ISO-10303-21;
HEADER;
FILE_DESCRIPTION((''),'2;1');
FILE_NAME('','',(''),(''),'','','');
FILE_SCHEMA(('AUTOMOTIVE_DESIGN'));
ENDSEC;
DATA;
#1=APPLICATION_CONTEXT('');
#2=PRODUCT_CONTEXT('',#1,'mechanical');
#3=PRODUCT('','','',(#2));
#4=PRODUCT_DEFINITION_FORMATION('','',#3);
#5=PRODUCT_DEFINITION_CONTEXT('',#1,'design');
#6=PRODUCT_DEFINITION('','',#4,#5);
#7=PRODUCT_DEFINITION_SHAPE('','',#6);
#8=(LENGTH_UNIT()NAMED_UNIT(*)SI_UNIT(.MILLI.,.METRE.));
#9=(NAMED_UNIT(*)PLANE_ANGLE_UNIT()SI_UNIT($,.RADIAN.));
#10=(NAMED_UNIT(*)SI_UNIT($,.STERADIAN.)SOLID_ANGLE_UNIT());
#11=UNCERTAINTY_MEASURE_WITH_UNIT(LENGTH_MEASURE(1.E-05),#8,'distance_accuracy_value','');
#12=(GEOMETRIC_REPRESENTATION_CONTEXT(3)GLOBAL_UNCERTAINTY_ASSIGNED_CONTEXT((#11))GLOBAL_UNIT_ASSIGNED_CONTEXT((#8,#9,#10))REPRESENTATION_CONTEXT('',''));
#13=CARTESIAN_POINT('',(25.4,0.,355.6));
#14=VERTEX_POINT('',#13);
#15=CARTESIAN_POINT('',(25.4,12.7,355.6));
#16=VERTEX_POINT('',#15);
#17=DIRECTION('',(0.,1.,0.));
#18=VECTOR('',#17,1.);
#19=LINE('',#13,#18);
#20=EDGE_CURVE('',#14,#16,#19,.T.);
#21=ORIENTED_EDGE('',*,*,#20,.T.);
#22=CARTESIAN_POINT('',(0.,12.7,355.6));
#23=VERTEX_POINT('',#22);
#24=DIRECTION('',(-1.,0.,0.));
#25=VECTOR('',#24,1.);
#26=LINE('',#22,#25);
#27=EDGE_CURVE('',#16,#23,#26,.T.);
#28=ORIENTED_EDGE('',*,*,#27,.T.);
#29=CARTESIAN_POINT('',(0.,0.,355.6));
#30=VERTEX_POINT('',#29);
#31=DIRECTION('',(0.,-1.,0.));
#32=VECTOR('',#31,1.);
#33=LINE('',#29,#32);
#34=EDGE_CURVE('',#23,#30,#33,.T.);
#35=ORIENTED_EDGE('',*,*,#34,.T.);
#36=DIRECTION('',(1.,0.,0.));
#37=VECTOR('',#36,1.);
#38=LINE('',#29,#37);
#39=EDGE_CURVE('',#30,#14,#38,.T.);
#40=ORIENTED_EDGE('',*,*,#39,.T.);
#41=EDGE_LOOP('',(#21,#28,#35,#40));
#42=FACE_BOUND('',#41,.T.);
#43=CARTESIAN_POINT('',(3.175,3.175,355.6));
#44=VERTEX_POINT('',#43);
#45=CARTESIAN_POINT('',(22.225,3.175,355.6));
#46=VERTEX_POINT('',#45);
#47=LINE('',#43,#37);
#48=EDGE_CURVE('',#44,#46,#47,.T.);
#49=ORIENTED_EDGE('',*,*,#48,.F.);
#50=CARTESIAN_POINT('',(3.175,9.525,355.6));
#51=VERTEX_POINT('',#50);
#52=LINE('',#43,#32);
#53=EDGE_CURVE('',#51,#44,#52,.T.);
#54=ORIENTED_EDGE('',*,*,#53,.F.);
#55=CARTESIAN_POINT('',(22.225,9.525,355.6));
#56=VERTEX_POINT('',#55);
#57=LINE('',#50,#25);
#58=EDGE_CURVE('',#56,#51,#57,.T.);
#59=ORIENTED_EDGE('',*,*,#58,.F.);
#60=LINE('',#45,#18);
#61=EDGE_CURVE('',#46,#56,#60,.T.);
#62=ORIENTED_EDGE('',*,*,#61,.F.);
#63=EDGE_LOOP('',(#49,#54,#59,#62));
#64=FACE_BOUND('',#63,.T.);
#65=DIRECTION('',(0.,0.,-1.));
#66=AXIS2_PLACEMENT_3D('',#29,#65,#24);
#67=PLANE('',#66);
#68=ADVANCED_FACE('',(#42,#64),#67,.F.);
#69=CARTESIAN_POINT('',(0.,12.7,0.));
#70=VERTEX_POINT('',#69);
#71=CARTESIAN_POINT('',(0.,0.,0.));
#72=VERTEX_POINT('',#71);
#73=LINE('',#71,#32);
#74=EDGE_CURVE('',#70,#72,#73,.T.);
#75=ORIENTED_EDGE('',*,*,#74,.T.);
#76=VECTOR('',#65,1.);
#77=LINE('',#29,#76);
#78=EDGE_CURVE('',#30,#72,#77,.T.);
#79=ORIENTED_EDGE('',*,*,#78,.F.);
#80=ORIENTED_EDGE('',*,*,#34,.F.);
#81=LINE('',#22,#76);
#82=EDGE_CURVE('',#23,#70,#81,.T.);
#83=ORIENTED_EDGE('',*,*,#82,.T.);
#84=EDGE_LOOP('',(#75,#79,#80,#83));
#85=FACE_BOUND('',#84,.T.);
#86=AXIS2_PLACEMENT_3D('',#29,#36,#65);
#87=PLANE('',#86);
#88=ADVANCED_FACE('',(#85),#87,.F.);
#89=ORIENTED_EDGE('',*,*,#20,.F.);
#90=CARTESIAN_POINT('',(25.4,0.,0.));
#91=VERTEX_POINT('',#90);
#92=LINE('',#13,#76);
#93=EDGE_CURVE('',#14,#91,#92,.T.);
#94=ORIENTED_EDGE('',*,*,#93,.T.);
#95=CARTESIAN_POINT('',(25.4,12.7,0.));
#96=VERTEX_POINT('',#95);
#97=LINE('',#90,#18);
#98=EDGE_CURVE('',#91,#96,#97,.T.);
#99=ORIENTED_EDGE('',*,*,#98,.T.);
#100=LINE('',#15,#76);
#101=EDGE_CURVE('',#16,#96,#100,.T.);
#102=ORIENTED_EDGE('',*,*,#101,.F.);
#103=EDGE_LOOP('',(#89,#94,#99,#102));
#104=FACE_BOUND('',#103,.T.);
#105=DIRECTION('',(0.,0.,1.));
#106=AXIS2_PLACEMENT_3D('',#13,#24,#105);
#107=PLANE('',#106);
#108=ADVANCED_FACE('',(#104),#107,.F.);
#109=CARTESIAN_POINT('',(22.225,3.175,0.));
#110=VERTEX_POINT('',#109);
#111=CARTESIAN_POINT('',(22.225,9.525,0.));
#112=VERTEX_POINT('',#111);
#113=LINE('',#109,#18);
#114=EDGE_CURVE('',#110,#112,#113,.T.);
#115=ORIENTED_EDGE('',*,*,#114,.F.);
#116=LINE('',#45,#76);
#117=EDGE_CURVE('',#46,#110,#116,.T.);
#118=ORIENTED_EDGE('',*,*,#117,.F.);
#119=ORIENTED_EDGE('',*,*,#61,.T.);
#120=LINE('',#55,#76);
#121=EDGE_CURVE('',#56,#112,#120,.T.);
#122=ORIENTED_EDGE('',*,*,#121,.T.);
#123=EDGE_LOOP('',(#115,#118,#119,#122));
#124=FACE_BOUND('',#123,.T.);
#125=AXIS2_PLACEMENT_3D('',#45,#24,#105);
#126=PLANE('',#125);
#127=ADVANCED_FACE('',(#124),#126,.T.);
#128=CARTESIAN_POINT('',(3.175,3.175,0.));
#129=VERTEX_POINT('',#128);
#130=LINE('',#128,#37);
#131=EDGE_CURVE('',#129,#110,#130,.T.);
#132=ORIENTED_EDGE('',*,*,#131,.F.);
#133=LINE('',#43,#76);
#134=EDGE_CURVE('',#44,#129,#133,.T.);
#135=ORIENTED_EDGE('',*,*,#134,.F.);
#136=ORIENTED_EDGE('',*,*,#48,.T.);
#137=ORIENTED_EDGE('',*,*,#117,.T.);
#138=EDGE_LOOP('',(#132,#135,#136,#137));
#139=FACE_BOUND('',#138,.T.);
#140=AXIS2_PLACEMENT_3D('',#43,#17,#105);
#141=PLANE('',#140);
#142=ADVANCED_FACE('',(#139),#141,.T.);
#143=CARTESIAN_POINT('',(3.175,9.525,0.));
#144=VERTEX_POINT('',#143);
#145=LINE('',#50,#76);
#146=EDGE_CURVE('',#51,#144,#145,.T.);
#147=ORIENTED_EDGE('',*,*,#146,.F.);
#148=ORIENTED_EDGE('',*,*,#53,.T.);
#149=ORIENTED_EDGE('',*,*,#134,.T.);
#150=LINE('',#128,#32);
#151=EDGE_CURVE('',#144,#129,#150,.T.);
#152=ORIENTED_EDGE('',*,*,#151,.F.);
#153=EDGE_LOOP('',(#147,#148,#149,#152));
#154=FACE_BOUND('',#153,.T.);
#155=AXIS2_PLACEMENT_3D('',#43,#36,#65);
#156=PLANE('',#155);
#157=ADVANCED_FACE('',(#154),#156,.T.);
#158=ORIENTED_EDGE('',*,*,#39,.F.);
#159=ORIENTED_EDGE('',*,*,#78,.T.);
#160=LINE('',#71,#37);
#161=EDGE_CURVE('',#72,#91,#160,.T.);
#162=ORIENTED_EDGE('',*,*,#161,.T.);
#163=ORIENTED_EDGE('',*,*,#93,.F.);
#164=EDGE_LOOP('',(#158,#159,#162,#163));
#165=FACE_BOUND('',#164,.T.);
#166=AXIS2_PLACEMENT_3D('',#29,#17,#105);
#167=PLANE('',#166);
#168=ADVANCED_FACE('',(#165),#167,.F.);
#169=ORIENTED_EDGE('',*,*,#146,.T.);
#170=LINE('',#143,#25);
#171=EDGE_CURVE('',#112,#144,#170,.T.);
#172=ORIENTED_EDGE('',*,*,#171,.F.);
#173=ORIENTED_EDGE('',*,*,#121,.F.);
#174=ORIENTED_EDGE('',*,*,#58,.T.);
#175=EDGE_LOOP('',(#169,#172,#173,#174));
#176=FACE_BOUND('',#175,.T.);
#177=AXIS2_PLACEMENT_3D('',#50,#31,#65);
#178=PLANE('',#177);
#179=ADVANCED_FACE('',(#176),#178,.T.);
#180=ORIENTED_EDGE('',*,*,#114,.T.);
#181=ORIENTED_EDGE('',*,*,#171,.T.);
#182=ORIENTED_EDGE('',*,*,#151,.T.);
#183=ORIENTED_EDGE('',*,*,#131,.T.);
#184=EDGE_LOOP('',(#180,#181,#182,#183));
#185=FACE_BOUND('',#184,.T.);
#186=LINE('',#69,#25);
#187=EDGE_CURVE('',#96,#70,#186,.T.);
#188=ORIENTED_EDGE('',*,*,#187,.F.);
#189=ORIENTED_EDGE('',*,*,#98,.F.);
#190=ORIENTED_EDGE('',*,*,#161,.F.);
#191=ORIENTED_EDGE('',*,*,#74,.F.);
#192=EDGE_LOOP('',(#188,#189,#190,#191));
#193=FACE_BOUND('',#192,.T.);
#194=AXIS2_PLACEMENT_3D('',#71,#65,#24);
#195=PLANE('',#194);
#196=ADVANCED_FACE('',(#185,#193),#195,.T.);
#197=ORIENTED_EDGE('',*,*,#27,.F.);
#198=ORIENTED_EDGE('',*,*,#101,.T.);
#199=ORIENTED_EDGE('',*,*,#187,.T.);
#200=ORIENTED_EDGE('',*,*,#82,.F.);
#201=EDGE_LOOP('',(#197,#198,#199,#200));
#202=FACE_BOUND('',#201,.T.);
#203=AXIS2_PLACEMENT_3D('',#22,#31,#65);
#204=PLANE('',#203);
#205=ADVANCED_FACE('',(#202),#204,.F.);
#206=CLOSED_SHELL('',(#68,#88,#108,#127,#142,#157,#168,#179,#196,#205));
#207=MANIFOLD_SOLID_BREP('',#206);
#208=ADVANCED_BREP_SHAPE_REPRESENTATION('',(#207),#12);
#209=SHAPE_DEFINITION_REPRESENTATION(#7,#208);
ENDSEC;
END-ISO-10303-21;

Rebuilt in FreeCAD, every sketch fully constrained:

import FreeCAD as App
import Part
import Sketcher

V = App.Vector
Q = App.Units.Quantity

doc = App.newDocument("Part")
body = doc.addObject("PartDesign::Body", "Body")

# Sketch on XY plane
sketch1 = doc.addObject("Sketcher::SketchObject", "Sketch")
body.addObject(sketch1)
sketch1.AttachmentSupport = (doc.XY_Plane, [""])
sketch1.MapMode = "FlatFace"
sketch1.addGeometry(Part.LineSegment(V(0, 12.7, 0), V(0, 0, 0)), False)
sketch1.addGeometry(Part.LineSegment(V(0, 0, 0), V(25.4, 0, 0)), False)
sketch1.addGeometry(Part.LineSegment(V(25.4, 0, 0), V(25.4, 12.7, 0)), False)
sketch1.addGeometry(Part.LineSegment(V(25.4, 12.7, 0), V(0, 12.7, 0)), False)
sketch1.addGeometry(Part.LineSegment(V(22.225, 3.175, 0), V(3.175, 3.175, 0)), False)
sketch1.addGeometry(Part.LineSegment(V(3.175, 3.175, 0), V(3.175, 9.525, 0)), False)
sketch1.addGeometry(Part.LineSegment(V(3.175, 9.525, 0), V(22.225, 9.525, 0)), False)
sketch1.addGeometry(Part.LineSegment(V(22.225, 9.525, 0), V(22.225, 3.175, 0)), False)
sketch1.addConstraint(Sketcher.Constraint("Coincident", 0, 2, 1, 1))
sketch1.addConstraint(Sketcher.Constraint("Coincident", 1, 2, 2, 1))
sketch1.addConstraint(Sketcher.Constraint("Coincident", 2, 2, 3, 1))
sketch1.addConstraint(Sketcher.Constraint("Coincident", 3, 2, 0, 1))
sketch1.addConstraint(Sketcher.Constraint("Coincident", 4, 2, 5, 1))
sketch1.addConstraint(Sketcher.Constraint("Coincident", 5, 2, 6, 1))
sketch1.addConstraint(Sketcher.Constraint("Coincident", 6, 2, 7, 1))
sketch1.addConstraint(Sketcher.Constraint("Coincident", 7, 2, 4, 1))
sketch1.addConstraint(Sketcher.Constraint("Vertical", 0))
sketch1.addConstraint(Sketcher.Constraint("Horizontal", 1))
sketch1.addConstraint(Sketcher.Constraint("Vertical", 2))
sketch1.addConstraint(Sketcher.Constraint("Horizontal", 3))
sketch1.addConstraint(Sketcher.Constraint("Horizontal", 4))
sketch1.addConstraint(Sketcher.Constraint("Vertical", 5))
sketch1.addConstraint(Sketcher.Constraint("Horizontal", 6))
sketch1.addConstraint(Sketcher.Constraint("Vertical", 7))
sketch1.addConstraint(Sketcher.Constraint("Coincident", 0, 2, -1, 1))
sketch1.addConstraint(Sketcher.Constraint("DistanceX", 1, 1, 1, 2, Q("1 in")))
sketch1.addConstraint(Sketcher.Constraint("DistanceY", 0, 2, 0, 1, Q("0.5 in")))
sketch1.addConstraint(Sketcher.Constraint("DistanceX", 4, 2, 4, 1, Q("0.75 in")))
sketch1.addConstraint(Sketcher.Constraint("DistanceY", 5, 1, 5, 2, Q("0.25 in")))
sketch1.addConstraint(Sketcher.Constraint("DistanceX", -1, 1, 4, 2, Q("0.125 in")))
sketch1.addConstraint(Sketcher.Constraint("DistanceY", -1, 1, 4, 2, Q("0.125 in")))
pad1 = doc.addObject("PartDesign::Pad", "Pad")
body.addObject(pad1)
pad1.Profile = sketch1
pad1.Length = Q("14 in")

doc.recompute()
